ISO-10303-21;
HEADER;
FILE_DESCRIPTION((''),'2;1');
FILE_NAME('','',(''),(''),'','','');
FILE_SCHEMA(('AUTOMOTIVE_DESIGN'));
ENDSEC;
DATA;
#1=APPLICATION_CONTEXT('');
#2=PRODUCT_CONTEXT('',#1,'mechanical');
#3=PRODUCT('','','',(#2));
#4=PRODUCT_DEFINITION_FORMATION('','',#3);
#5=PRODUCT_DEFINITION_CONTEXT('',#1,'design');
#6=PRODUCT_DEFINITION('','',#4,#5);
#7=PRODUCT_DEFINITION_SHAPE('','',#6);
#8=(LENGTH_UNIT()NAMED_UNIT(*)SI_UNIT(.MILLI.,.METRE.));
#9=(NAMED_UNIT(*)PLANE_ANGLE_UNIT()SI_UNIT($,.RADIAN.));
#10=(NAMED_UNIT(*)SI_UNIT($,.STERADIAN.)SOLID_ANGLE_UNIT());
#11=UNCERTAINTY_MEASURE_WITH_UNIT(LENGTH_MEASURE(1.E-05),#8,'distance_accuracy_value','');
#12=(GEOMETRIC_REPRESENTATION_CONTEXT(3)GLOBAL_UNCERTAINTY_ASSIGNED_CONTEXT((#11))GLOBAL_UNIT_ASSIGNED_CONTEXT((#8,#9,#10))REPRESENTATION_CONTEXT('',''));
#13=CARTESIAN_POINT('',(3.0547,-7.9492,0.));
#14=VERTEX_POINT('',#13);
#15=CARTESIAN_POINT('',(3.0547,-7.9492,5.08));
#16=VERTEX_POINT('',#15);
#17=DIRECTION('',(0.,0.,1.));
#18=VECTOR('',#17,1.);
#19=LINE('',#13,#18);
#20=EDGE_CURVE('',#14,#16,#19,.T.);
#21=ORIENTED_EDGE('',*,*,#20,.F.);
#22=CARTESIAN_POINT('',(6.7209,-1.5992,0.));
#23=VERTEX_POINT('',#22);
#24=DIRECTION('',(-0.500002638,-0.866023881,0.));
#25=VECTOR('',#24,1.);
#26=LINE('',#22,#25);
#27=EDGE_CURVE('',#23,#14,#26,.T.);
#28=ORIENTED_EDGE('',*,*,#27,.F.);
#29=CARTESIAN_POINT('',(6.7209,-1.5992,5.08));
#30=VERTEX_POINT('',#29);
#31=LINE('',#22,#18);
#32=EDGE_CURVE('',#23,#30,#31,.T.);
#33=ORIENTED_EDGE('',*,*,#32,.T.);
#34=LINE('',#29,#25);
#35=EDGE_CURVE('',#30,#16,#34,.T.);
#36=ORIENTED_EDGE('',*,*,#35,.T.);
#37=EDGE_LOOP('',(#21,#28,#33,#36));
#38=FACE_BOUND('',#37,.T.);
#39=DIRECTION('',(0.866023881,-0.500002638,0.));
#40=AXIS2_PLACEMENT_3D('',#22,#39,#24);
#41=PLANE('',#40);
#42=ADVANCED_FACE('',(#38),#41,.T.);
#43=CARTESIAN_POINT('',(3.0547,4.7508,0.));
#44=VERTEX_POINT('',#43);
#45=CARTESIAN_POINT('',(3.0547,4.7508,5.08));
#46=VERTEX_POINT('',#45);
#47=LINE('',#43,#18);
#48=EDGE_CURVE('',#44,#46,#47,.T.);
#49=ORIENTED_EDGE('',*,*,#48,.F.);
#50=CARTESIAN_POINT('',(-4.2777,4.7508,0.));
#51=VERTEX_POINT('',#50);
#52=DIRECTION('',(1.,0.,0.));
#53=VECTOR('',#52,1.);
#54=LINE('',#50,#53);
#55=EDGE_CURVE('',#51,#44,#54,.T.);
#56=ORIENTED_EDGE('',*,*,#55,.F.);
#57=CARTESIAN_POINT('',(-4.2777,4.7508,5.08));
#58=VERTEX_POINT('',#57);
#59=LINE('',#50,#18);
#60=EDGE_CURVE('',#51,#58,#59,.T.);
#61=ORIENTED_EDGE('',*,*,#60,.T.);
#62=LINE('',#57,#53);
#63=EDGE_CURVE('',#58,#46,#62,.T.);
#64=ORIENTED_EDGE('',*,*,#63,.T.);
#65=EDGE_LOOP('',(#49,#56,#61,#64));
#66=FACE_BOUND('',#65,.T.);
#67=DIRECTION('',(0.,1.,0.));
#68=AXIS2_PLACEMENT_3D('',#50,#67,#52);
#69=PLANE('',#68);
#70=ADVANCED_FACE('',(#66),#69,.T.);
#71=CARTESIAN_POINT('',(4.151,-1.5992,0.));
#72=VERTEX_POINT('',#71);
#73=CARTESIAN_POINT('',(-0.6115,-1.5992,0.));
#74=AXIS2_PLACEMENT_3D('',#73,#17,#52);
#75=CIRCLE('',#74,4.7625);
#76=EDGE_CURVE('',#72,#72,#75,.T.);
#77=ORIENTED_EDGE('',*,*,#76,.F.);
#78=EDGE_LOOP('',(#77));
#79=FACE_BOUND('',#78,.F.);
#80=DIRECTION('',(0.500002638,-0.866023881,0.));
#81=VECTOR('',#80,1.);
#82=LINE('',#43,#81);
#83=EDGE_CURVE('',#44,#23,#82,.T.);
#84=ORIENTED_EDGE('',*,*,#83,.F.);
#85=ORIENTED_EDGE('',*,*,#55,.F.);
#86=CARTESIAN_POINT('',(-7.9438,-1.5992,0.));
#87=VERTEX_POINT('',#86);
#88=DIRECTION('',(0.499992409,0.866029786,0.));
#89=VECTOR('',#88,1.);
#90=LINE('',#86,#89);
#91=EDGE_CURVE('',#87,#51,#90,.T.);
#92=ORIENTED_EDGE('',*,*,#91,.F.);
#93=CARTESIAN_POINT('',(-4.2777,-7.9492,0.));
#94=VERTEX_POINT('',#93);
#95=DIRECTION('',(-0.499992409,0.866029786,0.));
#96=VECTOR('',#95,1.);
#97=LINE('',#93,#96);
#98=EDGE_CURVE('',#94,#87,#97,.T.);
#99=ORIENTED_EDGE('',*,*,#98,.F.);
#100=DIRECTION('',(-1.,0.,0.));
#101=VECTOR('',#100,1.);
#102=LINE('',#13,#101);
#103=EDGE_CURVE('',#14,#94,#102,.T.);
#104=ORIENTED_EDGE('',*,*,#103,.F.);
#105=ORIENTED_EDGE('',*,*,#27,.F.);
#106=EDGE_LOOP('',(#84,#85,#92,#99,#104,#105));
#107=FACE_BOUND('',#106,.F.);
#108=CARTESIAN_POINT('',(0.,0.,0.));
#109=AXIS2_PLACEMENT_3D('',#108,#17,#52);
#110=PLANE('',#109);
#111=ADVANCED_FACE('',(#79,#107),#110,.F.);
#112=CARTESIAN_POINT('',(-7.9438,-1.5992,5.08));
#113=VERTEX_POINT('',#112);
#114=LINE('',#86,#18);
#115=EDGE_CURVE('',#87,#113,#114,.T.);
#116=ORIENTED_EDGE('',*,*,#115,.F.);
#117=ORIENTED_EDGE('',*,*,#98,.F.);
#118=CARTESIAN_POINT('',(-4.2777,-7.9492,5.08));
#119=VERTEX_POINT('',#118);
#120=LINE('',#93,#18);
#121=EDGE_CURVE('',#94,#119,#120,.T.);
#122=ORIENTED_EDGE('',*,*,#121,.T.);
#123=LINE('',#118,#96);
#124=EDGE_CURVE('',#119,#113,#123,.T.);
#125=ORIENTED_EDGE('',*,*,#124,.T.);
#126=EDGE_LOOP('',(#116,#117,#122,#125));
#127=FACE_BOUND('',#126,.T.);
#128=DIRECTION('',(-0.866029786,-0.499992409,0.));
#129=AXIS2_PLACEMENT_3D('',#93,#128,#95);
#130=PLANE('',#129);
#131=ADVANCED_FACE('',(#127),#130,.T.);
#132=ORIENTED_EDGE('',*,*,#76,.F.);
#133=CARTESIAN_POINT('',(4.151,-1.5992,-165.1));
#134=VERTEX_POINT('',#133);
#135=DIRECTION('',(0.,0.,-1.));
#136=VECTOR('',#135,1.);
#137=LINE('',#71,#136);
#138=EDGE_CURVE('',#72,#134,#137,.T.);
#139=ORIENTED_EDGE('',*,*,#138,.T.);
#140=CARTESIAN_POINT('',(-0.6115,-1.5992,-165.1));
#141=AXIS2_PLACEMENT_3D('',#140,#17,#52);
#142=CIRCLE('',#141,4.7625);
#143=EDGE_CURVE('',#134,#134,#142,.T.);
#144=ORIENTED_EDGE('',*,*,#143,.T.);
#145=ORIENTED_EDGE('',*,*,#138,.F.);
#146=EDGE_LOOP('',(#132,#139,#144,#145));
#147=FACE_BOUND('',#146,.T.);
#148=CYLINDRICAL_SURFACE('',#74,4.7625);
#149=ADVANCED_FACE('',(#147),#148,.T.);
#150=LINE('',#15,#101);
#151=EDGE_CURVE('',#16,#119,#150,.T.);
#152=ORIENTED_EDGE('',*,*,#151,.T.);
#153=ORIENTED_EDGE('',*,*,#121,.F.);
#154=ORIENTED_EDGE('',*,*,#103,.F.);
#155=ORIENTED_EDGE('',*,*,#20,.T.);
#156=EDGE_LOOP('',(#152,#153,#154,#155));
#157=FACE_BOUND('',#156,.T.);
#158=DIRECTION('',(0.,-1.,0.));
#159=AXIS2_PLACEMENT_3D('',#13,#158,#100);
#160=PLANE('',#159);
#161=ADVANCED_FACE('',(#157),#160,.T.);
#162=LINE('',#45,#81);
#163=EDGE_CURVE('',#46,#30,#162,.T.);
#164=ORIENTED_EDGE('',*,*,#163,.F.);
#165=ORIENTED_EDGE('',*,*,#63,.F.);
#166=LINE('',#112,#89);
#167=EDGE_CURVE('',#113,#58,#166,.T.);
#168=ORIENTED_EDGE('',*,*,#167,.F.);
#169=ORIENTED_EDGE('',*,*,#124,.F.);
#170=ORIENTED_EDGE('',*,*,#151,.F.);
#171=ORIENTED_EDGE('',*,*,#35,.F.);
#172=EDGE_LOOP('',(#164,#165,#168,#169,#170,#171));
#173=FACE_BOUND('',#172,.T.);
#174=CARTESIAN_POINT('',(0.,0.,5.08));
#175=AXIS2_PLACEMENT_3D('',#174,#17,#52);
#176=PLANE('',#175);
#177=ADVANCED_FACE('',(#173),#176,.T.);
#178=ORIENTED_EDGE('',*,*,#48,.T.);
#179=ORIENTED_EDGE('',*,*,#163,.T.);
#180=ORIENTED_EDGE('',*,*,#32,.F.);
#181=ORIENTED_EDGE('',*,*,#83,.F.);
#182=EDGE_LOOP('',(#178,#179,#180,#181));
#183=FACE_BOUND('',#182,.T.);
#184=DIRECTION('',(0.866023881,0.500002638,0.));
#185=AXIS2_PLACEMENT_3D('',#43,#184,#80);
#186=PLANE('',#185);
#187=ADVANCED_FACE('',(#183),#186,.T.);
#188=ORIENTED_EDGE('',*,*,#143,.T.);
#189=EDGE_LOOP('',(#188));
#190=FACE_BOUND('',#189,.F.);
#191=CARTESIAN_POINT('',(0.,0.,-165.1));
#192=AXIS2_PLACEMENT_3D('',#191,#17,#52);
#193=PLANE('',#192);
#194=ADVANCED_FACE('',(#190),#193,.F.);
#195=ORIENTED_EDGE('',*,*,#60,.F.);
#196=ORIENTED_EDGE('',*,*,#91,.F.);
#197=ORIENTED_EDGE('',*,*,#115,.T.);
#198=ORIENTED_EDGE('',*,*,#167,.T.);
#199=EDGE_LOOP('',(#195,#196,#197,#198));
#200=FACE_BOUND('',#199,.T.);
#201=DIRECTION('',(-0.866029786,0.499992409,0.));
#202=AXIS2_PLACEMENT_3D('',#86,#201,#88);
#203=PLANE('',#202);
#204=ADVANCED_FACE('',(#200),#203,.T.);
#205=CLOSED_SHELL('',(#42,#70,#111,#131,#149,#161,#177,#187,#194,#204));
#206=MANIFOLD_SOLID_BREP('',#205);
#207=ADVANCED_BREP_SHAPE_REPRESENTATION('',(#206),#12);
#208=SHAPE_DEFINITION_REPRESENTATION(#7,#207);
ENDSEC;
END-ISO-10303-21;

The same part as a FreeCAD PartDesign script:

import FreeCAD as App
import Part
import Sketcher
Q = App.Units.Quantity


def add_polygon(sketch, points):
    """Adds a closed chain of lines whose ends are joined by coincident constraints."""
    first, n = sketch.GeometryCount, len(points)
    for a, b in zip(points, points[1:] + points[:1]):
        sketch.addGeometry(Part.LineSegment(App.Vector(*a, 0), App.Vector(*b, 0)), False)
    for i in range(n):
        sketch.addConstraint(Sketcher.Constraint("Coincident", first + i, 2, first + (i + 1) % n, 1))

doc = App.newDocument("Part")
body = doc.addObject("PartDesign::Body", "Body")

# Sketch on XY plane
sketch1 = body.newObject("Sketcher::SketchObject", "Sketch")
sketch1.AttachmentSupport = (doc.getObject("XY_Plane"), [""])
sketch1.MapMode = "FlatFace"
sketch1.addGeometry(Part.Circle(App.Vector(-0.6115, -1.5992, 0), App.Vector(0, 0, 1), 4.7625), False)
sketch1.addConstraint(Sketcher.Constraint("Diameter", 0, Q("0.375 in")))
sketch1.addConstraint(Sketcher.Constraint("DistanceX", 0, 3, -1, 1, 0.6115))
sketch1.addConstraint(Sketcher.Constraint("DistanceY", 0, 3, -1, 1, 1.5992))
pad1 = body.newObject("PartDesign::Pad", "Pad")
pad1.Profile = sketch1
pad1.Length = Q("6.5 in")
pad1.Reversed = True

# Sketch on XY plane
sketch2 = body.newObject("Sketcher::SketchObject", "Sketch001")
sketch2.AttachmentSupport = (doc.getObject("XY_Plane"), [""])
sketch2.MapMode = "FlatFace"
add_polygon(sketch2, [(-4.2777, 4.7508), (-7.9438, -1.5992), (-4.2777, -7.9492), (3.0547, -7.9492), (6.7209, -1.5992), (3.0547, 4.7508)])  # lines 0-5
sketch2.addConstraint(Sketcher.Constraint("Horizontal", 2))
sketch2.addConstraint(Sketcher.Constraint("Horizontal", 5))
sketch2.addConstraint(Sketcher.Constraint("Parallel", 0, 3))
sketch2.addConstraint(Sketcher.Constraint("Parallel", 1, 4))
sketch2.addConstraint(Sketcher.Constraint("Horizontal", 0, 2, 3, 2))
sketch2.addConstraint(Sketcher.Constraint("Vertical", 2, 2, 4, 2))
sketch2.addConstraint(Sketcher.Constraint("Vertical", 1, 2, 5, 2))
sketch2.addConstraint(Sketcher.Constraint("DistanceY", 2, 2, 4, 2, Q("0.5 in")))
sketch2.addConstraint(Sketcher.Constraint("Angle", 0, Q("-119.9995 deg")))
sketch2.addConstraint(Sketcher.Constraint("DistanceX", 0, 2, 2, 2, Q("0.433 in")))
sketch2.addConstraint(Sketcher.Constraint("DistanceX", -1, 1, 3, 2, Q("0.2646 in")))
sketch2.addConstraint(Sketcher.Constraint("DistanceY", 0, 2, -1, 1, 1.5992))
pad2 = body.newObject("PartDesign::Pad", "Pad001")
pad2.Profile = sketch2
pad2.Length = Q("0.2 in")

doc.recompute()
